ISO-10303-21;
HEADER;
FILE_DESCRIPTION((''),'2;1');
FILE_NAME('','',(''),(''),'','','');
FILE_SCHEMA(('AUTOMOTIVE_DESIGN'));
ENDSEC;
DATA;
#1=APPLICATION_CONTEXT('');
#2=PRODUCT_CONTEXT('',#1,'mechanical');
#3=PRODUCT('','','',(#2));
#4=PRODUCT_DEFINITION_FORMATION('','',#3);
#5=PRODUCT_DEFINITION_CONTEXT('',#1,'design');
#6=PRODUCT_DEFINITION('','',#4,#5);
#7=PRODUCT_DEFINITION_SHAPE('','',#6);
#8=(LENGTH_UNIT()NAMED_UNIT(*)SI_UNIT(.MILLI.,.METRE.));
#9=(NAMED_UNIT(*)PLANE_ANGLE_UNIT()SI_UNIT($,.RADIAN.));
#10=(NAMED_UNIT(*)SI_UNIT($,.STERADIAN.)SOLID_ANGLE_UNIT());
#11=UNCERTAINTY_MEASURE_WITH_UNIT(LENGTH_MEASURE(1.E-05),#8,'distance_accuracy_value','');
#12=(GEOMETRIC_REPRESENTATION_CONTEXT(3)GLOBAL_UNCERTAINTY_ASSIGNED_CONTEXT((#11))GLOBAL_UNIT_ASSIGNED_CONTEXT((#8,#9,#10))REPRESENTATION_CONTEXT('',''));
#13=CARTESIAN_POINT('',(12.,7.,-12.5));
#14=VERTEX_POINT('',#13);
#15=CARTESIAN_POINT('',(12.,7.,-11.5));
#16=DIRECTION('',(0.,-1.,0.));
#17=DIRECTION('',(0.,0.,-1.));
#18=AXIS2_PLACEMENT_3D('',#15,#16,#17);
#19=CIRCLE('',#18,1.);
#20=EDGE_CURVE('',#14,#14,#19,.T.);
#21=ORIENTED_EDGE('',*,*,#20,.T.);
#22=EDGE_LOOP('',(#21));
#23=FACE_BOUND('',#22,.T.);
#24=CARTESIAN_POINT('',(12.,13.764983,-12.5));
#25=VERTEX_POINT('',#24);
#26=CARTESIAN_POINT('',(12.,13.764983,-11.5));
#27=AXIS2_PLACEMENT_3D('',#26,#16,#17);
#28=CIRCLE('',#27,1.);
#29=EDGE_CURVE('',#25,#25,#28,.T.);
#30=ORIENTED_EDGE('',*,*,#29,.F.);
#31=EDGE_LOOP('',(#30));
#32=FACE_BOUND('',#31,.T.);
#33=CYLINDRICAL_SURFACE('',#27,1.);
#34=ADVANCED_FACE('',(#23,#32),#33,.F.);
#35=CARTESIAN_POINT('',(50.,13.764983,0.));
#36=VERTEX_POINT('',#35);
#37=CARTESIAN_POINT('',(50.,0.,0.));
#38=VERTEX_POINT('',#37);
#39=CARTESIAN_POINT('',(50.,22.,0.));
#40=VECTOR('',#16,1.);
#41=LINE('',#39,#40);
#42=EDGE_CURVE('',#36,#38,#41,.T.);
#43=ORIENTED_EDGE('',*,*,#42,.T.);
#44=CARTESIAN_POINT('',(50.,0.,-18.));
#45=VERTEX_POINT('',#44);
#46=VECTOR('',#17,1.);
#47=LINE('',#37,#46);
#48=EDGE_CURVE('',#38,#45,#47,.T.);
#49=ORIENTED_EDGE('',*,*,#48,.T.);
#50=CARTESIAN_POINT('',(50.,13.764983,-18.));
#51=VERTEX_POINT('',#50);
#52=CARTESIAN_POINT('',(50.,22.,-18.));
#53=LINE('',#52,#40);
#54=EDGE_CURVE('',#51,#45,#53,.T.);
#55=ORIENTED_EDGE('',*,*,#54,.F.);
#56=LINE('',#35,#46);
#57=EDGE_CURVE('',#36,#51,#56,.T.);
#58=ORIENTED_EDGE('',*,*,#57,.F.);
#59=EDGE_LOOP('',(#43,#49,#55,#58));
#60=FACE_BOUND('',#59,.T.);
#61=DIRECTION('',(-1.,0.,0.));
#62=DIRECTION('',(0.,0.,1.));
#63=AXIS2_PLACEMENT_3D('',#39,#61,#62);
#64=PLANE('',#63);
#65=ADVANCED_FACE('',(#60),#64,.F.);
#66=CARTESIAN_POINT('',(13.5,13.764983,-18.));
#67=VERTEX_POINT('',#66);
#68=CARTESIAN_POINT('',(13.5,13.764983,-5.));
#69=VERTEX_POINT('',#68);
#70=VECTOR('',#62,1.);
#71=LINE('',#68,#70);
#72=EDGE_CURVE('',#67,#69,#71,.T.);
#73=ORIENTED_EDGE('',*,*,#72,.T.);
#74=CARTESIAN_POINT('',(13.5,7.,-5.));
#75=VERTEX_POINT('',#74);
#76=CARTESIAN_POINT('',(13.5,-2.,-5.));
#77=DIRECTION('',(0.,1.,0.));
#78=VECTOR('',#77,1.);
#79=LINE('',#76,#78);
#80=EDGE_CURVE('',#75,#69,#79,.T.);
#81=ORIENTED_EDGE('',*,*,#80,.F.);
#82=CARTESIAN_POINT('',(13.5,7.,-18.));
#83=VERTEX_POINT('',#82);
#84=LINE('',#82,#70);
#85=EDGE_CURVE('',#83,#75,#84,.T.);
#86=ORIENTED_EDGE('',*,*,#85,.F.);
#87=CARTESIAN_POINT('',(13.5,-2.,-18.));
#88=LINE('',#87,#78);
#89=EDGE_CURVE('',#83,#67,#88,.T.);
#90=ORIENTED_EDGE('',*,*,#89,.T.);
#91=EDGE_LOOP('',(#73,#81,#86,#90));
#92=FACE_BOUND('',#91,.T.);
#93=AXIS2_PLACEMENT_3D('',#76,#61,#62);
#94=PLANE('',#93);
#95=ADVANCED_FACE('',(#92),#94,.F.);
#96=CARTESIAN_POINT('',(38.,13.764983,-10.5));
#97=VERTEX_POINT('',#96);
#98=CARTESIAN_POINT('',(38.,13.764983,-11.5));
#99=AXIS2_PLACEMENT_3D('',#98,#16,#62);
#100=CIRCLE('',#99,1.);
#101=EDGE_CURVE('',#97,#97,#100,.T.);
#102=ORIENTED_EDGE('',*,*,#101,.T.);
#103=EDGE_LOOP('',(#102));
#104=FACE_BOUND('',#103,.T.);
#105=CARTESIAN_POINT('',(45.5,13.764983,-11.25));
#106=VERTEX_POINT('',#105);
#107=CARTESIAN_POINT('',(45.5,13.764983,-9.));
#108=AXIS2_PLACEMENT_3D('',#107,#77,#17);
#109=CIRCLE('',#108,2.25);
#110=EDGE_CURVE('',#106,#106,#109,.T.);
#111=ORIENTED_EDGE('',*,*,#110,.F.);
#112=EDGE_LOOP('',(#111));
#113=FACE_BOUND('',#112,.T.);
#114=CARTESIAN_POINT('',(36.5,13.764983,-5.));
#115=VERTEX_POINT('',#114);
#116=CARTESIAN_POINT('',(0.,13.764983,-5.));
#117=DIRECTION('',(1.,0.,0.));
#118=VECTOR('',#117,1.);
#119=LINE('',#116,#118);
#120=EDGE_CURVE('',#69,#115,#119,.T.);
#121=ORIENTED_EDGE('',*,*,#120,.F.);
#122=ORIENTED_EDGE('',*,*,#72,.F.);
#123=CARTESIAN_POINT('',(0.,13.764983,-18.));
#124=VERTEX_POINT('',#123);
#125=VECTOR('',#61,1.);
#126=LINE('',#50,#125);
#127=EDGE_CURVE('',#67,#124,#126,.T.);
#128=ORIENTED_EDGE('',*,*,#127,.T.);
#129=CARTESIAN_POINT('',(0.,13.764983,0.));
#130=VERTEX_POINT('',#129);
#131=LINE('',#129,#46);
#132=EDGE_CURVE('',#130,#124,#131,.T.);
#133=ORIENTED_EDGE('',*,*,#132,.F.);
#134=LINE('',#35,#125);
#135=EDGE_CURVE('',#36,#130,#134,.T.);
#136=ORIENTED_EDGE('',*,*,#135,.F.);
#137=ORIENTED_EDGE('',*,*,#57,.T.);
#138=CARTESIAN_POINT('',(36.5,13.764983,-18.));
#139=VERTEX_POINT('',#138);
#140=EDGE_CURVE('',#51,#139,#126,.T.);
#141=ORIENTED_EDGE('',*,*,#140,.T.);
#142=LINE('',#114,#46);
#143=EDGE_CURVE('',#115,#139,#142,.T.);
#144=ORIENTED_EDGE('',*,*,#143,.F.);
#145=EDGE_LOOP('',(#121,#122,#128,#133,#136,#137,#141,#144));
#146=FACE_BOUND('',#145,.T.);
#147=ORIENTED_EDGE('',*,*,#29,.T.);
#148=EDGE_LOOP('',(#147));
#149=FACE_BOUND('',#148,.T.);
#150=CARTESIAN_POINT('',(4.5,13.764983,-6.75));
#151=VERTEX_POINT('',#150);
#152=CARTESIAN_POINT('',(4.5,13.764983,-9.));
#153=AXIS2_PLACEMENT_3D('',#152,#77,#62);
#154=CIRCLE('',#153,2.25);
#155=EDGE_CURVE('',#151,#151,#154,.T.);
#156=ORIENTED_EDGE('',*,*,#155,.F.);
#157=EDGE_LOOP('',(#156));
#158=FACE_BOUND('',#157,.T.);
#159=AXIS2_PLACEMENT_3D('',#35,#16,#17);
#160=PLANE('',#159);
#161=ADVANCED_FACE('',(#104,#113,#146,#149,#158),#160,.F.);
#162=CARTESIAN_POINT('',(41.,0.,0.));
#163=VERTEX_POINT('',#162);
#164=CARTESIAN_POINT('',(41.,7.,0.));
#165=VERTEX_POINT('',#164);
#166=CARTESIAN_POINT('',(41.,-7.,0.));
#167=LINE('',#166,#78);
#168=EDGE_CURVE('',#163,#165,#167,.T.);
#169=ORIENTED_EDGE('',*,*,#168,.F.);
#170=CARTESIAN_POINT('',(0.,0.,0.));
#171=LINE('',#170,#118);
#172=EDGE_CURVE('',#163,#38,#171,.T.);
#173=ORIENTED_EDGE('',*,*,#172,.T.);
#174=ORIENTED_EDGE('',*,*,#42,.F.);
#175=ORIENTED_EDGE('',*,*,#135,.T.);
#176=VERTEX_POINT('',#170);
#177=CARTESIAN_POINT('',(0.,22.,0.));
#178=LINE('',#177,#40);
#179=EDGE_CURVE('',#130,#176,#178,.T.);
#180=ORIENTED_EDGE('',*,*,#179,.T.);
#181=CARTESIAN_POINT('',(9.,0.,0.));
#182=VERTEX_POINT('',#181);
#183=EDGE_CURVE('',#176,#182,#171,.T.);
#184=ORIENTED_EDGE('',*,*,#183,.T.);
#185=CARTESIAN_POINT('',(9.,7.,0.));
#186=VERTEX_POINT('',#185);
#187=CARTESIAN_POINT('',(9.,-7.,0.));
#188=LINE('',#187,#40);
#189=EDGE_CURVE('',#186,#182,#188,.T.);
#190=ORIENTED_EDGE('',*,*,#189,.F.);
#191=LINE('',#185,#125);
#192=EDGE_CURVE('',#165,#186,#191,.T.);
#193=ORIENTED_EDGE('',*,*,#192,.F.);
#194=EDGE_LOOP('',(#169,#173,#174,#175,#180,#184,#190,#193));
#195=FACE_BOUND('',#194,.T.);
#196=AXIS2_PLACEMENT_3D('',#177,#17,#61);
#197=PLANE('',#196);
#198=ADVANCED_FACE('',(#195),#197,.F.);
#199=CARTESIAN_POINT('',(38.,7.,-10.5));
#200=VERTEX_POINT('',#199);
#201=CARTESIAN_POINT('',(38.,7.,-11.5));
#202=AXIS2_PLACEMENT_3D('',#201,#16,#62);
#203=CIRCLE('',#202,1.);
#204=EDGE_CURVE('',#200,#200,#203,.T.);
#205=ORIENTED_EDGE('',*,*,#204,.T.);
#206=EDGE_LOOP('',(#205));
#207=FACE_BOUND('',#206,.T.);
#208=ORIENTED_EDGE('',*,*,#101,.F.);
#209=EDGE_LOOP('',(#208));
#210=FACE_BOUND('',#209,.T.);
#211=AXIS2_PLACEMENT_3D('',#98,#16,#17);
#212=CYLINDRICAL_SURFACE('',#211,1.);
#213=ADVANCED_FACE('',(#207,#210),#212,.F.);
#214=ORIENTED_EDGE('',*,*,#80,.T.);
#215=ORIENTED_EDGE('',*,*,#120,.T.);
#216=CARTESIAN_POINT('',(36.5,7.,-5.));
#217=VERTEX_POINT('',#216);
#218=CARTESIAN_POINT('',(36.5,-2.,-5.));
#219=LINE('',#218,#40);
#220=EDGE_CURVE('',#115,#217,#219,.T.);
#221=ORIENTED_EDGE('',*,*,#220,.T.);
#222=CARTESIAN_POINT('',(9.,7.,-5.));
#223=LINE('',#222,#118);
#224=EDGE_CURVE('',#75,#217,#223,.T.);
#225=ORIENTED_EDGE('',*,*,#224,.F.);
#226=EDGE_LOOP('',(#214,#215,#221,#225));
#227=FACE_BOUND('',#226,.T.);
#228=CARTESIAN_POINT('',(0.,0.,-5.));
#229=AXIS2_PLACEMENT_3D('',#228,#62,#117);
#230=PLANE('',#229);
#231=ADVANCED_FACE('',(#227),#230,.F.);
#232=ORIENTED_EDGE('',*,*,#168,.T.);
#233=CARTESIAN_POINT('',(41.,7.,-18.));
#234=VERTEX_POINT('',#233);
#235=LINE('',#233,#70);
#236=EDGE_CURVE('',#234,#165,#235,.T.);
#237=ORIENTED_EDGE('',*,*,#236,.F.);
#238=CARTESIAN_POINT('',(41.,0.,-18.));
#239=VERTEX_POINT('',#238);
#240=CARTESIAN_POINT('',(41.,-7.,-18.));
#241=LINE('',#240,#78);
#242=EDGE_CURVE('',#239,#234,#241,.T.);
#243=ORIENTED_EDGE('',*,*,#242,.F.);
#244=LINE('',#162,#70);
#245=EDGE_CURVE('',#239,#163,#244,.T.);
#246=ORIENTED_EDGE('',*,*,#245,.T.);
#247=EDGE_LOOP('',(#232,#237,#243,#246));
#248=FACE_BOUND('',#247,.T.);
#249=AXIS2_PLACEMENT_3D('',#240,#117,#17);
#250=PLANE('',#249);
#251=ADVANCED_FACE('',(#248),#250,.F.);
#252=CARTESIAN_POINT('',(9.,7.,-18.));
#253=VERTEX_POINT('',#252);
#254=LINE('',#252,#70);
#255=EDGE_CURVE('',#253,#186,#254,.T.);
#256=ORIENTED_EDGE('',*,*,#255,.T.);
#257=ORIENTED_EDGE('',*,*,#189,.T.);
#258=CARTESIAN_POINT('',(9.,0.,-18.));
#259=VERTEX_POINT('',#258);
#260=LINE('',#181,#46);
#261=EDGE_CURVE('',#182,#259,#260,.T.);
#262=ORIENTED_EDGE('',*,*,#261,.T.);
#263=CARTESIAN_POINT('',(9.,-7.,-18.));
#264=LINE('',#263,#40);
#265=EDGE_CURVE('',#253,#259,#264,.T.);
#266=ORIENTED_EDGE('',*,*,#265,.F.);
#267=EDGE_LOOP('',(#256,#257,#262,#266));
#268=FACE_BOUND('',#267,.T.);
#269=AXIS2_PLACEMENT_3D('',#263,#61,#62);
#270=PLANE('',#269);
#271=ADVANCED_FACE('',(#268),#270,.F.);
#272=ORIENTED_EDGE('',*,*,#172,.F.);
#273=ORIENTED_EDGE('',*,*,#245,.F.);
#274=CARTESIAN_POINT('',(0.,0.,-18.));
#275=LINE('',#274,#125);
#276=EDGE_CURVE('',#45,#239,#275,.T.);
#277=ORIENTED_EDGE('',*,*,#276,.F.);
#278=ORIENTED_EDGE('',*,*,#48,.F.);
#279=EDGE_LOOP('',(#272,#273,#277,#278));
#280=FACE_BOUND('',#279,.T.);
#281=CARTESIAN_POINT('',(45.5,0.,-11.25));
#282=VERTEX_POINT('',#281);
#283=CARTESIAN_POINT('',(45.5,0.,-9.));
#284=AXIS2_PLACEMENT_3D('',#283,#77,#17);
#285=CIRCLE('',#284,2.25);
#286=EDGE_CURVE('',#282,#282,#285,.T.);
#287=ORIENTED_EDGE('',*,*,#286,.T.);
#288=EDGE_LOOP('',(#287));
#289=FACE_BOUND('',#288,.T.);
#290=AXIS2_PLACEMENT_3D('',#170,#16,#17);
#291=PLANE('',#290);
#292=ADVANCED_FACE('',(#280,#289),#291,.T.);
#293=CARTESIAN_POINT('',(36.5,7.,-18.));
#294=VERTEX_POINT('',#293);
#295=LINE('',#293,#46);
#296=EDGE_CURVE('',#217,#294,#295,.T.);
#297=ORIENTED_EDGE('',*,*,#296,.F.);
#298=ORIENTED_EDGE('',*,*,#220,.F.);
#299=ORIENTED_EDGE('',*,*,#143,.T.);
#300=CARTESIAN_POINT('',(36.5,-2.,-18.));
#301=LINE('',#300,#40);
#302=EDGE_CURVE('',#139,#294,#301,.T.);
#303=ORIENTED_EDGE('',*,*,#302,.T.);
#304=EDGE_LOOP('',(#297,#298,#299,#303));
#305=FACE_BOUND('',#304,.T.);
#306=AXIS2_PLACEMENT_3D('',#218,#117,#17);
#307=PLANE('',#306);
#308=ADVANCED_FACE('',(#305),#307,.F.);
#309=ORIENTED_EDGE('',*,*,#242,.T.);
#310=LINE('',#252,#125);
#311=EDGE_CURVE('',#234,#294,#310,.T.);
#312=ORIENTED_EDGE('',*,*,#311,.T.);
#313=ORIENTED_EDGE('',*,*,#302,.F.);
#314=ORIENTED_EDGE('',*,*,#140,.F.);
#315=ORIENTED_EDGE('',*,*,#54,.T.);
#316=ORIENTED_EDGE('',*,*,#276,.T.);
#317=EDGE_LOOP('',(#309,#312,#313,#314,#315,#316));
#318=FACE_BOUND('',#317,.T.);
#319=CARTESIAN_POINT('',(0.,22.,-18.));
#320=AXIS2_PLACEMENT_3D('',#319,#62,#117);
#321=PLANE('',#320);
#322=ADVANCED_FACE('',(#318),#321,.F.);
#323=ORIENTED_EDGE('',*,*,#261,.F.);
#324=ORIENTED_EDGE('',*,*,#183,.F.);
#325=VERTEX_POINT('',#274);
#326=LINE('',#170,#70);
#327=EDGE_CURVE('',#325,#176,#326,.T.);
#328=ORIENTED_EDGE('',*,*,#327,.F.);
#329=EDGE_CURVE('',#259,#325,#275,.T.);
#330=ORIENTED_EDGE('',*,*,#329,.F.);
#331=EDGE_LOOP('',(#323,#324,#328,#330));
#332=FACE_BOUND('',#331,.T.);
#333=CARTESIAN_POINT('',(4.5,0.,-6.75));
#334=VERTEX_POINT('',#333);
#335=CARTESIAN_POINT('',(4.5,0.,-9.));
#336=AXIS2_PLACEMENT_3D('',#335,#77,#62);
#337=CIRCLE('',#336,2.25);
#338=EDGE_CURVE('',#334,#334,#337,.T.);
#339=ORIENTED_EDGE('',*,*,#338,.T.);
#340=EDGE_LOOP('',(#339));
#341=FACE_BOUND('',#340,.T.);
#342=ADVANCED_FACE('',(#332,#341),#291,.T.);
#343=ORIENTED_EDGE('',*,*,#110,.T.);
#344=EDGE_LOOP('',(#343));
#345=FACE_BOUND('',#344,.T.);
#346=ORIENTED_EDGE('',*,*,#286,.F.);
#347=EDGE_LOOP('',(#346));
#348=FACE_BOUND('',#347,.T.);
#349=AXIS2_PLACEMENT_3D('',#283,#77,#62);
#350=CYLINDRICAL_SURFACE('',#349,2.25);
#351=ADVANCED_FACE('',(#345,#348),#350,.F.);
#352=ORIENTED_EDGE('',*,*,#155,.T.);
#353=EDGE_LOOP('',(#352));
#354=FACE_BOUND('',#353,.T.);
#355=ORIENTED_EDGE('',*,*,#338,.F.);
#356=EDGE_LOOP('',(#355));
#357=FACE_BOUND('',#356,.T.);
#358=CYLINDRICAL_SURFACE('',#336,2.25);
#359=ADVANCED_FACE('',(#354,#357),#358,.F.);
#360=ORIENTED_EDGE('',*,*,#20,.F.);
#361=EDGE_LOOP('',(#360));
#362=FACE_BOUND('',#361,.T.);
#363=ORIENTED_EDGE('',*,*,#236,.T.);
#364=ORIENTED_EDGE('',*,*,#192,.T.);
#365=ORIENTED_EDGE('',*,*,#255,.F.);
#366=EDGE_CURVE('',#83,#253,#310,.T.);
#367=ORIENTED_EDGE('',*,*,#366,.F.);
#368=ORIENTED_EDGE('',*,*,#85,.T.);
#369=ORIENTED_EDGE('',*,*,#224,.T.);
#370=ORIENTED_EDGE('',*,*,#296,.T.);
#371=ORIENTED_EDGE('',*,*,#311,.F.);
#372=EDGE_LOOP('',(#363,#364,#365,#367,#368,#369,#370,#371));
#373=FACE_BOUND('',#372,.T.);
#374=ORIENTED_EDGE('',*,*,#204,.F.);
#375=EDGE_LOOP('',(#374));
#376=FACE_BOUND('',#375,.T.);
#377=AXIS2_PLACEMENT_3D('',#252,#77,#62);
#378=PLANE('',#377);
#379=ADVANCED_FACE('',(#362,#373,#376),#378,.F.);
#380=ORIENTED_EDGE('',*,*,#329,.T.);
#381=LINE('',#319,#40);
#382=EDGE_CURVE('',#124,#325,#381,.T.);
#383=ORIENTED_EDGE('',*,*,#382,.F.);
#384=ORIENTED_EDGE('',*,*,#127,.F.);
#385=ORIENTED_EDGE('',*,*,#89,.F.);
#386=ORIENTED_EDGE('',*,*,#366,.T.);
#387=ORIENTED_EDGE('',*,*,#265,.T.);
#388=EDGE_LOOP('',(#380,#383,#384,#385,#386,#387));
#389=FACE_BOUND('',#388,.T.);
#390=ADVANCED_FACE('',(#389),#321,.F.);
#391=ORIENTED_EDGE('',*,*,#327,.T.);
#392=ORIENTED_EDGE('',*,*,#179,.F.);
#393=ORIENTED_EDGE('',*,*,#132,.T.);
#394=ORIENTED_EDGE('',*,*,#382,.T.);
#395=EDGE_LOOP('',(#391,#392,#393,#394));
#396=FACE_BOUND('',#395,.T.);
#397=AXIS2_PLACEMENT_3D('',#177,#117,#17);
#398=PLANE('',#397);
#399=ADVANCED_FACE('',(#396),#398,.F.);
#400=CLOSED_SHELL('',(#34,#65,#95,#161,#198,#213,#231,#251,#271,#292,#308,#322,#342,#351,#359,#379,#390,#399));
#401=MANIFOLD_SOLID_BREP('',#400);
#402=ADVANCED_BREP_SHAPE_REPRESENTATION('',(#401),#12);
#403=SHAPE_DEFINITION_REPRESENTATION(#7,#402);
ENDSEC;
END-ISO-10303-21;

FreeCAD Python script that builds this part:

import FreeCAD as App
import Part
import Sketcher

V = App.Vector


def add_polygon(sketch, points):
    """Adds a closed chain of lines whose ends are joined by coincident constraints."""
    first, n = sketch.GeometryCount, len(points)
    for a, b in zip(points, points[1:] + points[:1]):
        sketch.addGeometry(Part.LineSegment(App.Vector(*a, 0), App.Vector(*b, 0)), False)
    for i in range(n):
        sketch.addConstraint(Sketcher.Constraint("Coincident", first + i, 2, first + (i + 1) % n, 1))

doc = App.newDocument("Part")
params = doc.addObject("Spreadsheet::Sheet", "Params")
for row, (alias, value) in enumerate([
    ("sketch1_width", "50 mm"),
    ("sketch1_height", "18 mm"),
    ("pad1_length", "22 mm"),
    ("sketch2_width", "32 mm"),
    ("sketch2_height", "14 mm"),
    ("sketch3_width", "23 mm"),
    ("sketch3_height", "18 mm"),
    ("pocket2_length", "13 mm"),
    ("sketch4_width", "50 mm"),
    ("sketch5_diameter", "2 mm"),
    ("sketch6_diameter", "4.5 mm"),
], start=1):
    params.set(f"A{row}", alias)
    params.set(f"B{row}", "=" + value)
    params.setAlias(f"B{row}", alias)

body = doc.addObject("PartDesign::Body", "Body")

# Sketch on XZ plane
sketch1 = body.newObject("Sketcher::SketchObject", "Sketch")
sketch1.AttachmentSupport = (doc.getObject("XZ_Plane"), [""])
sketch1.MapMode = "FlatFace"
add_polygon(sketch1, [(0, -18), (0, 0), (50, 0), (50, -18)])  # lines 0-3
sketch1.addConstraint([
    Sketcher.Constraint("Vertical", 0),
    Sketcher.Constraint("Horizontal", 1),
    Sketcher.Constraint("Vertical", 2),
    Sketcher.Constraint("Horizontal", 3),
    Sketcher.Constraint("Coincident", 0, 2, -1, 1),
    Sketcher.Constraint("DistanceX", 1, 1, 1, 2, 50.0),
    Sketcher.Constraint("DistanceY", 0, 1, 0, 2, 18.0),
])
sketch1.setExpression("Constraints[9]", "Params.sketch1_width")
sketch1.setExpression("Constraints[10]", "Params.sketch1_height")
pad1 = body.newObject("PartDesign::Pad", "Pad")
pad1.Profile = sketch1
pad1.setExpression("Length", "Params.pad1_length")
pad1.Reversed = True

# Sketch on XY plane
sketch2 = body.newObject("Sketcher::SketchObject", "Sketch001")
sketch2.AttachmentSupport = (doc.getObject("XY_Plane"), [""])
sketch2.MapMode = "FlatFace"
add_polygon(sketch2, [(9, 7), (9, -7), (41, -7), (41, 7)])  # lines 0-3
sketch2.addConstraint([
    Sketcher.Constraint("Vertical", 0),
    Sketcher.Constraint("Horizontal", 1),
    Sketcher.Constraint("Vertical", 2),
    Sketcher.Constraint("Horizontal", 3),
    Sketcher.Constraint("DistanceX", 1, 1, 1, 2, 32.0),
    Sketcher.Constraint("DistanceY", 0, 2, 0, 1, 14.0),
    Sketcher.Constraint("DistanceX", -1, 1, 0, 2, 9.0),
    Sketcher.Constraint("DistanceY", 0, 2, -1, 1, 7.0),
])
sketch2.setExpression("Constraints[8]", "Params.sketch2_width")
sketch2.setExpression("Constraints[9]", "Params.sketch2_height")
pocket1 = body.newObject("PartDesign::Pocket", "Pocket")
pocket1.Profile = sketch2
pocket1.Type = "ThroughAll"

# Sketch on XY plane
sketch3 = body.newObject("Sketcher::SketchObject", "Sketch002")
sketch3.AttachmentSupport = (doc.getObject("XY_Plane"), [""])
sketch3.MapMode = "FlatFace"
sketch3.AttachmentOffset = App.Placement(V(0, 0, -18), App.Rotation())
add_polygon(sketch3, [(36.5, 16), (36.5, -2), (13.5, -2), (13.5, 16)])  # lines 0-3
sketch3.addConstraint([
    Sketcher.Constraint("Vertical", 0),
    Sketcher.Constraint("Horizontal", 1),
    Sketcher.Constraint("Vertical", 2),
    Sketcher.Constraint("Horizontal", 3),
    Sketcher.Constraint("DistanceX", 1, 2, 1, 1, 23.0),
    Sketcher.Constraint("DistanceY", 0, 2, 0, 1, 18.0),
    Sketcher.Constraint("DistanceY", 0, 2, -1, 1, 2.0),
    Sketcher.Constraint("DistanceX", -1, 1, 0, 2, 36.5),
])
sketch3.setExpression("Constraints[8]", "Params.sketch3_width")
sketch3.setExpression("Constraints[9]", "Params.sketch3_height")
pocket2 = body.newObject("PartDesign::Pocket", "Pocket001")
pocket2.Profile = sketch3
pocket2.setExpression("Length", "Params.pocket2_length")
pocket2.Reversed = True

# Sketch on XY plane
sketch4 = body.newObject("Sketcher::SketchObject", "Sketch003")
sketch4.AttachmentSupport = (doc.getObject("XY_Plane"), [""])
sketch4.MapMode = "FlatFace"
sketch4.AttachmentOffset = App.Placement(V(0, 0, -18), App.Rotation())
add_polygon(sketch4, [(50, 22), (50, 13.764983), (0, 13.764983), (0, 22)])  # lines 0-3
sketch4.addConstraint([
    Sketcher.Constraint("Vertical", 0),
    Sketcher.Constraint("Horizontal", 1),
    Sketcher.Constraint("Vertical", 2),
    Sketcher.Constraint("Horizontal", 3),
    Sketcher.Constraint("PointOnObject", 1, 2, -2),
    Sketcher.Constraint("DistanceX", 1, 2, 1, 1, 50.0),
    Sketcher.Constraint("DistanceY", -1, 1, 2, 2, 22.0),
    Sketcher.Constraint("DistanceY", 0, 2, 0, 1, 8.235017),
])
sketch4.setExpression("Constraints[9]", "Params.sketch4_width")
pocket3 = body.newObject("PartDesign::Pocket", "Pocket002")
pocket3.Profile = sketch4
pocket3.Type = "ThroughAll"
pocket3.Reversed = True

# Sketch on XZ plane
sketch5 = body.newObject("Sketcher::SketchObject", "Sketch004")
sketch5.AttachmentSupport = (doc.getObject("XZ_Plane"), [""])
sketch5.MapMode = "FlatFace"
sketch5.AttachmentOffset = App.Placement(V(0, 0, -7), App.Rotation())
sketch5.addGeometry([
    Part.Circle(V(12, -11.5, 0), V(0, 0, 1), 1),
    Part.Circle(V(38, -11.5, 0), V(0, 0, 1), 1),
], False)
sketch5.addConstraint([
    Sketcher.Constraint("Equal", 0, 1),
    Sketcher.Constraint("Horizontal", 0, 3, 1, 3),
    Sketcher.Constraint("Diameter", 0, 2.0),
    Sketcher.Constraint("DistanceX", -1, 1, 0, 3, 12.0),
    Sketcher.Constraint("DistanceX", -1, 1, 1, 3, 38.0),
    Sketcher.Constraint("DistanceY", 0, 3, -1, 1, 11.5),
])
sketch5.setExpression("Constraints[2]", "Params.sketch5_diameter")
pocket4 = body.newObject("PartDesign::Pocket", "Pocket003")
pocket4.Profile = sketch5
pocket4.Type = "ThroughAll"

# Sketch on XZ plane
sketch6 = body.newObject("Sketcher::SketchObject", "Sketch005")
sketch6.AttachmentSupport = (doc.getObject("XZ_Plane"), [""])
sketch6.MapMode = "FlatFace"
sketch6.AttachmentOffset = App.Placement(V(0, 0, -13.764983), App.Rotation())
sketch6.addGeometry([
    Part.Circle(V(4.5, -9, 0), V(0, 0, 1), 2.25),
    Part.Circle(V(45.5, -9, 0), V(0, 0, 1), 2.25),
], False)
sketch6.addConstraint([
    Sketcher.Constraint("Equal", 0, 1),
    Sketcher.Constraint("Horizontal", 0, 3, 1, 3),
    Sketcher.Constraint("Diameter", 0, 4.5),
    Sketcher.Constraint("DistanceY", 0, 3, -1, 1, 9.0),
    Sketcher.Constraint("DistanceX", 0, 3, 1, 3, 41.0),
    Sketcher.Constraint("DistanceX", -1, 1, 0, 3, 4.5),
])
sketch6.setExpression("Constraints[2]", "Params.sketch6_diameter")
pocket5 = body.newObject("PartDesign::Pocket", "Pocket004")
pocket5.Profile = sketch6
pocket5.Type = "ThroughAll"
pocket5.Reversed = True

doc.recompute()
